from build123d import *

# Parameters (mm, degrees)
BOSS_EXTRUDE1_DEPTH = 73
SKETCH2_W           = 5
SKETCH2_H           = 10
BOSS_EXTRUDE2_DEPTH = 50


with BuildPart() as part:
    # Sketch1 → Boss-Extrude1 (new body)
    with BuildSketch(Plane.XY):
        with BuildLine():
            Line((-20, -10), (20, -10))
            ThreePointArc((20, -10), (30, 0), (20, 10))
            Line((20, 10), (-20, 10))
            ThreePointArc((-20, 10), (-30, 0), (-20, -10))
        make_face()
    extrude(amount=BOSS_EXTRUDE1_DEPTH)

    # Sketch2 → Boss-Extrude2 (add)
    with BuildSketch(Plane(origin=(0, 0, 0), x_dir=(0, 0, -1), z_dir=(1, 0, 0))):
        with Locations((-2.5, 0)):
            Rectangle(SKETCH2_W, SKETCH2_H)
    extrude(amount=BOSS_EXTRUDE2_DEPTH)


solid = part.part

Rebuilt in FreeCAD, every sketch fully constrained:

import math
import FreeCAD as App
import Part
import Sketcher
Q = App.Units.Quantity


def add_polygon(sketch, points):
    """Adds a closed chain of lines whose ends are joined by coincident constraints."""
    first, n = sketch.GeometryCount, len(points)
    for a, b in zip(points, points[1:] + points[:1]):
        sketch.addGeometry(Part.LineSegment(App.Vector(*a, 0), App.Vector(*b, 0)), False)
    for i in range(n):
        sketch.addConstraint(Sketcher.Constraint("Coincident", first + i, 2, first + (i + 1) % n, 1))

doc = App.newDocument("Part")
body = doc.addObject("PartDesign::Body", "Body")

sketch1 = body.newObject("Sketcher::SketchObject", "Sketch")
sketch1.AttachmentSupport = (doc.getObject("XY_Plane"), [""])
sketch1.MapMode = "FlatFace"
sketch1.addGeometry(Part.LineSegment(App.Vector(-20, -10, 0), App.Vector(20, -10, 0)), False)
sketch1.addGeometry(Part.ArcOfCircle(Part.Circle(App.Vector(20, 0, 0), App.Vector(0, 0, 1), 10), math.radians(-90), math.radians(90)), False)
sketch1.addGeometry(Part.LineSegment(App.Vector(20, 10, 0), App.Vector(-20, 10, 0)), False)
sketch1.addGeometry(Part.ArcOfCircle(Part.Circle(App.Vector(-20, 0, 0), App.Vector(0, 0, 1), 10), math.radians(90), math.radians(270)), False)
sketch1.addConstraint(Sketcher.Constraint("Tangent", 0, 2, 1, 1))
sketch1.addConstraint(Sketcher.Constraint("Tangent", 1, 2, 2, 1))
sketch1.addConstraint(Sketcher.Constraint("Tangent", 2, 2, 3, 1))
sketch1.addConstraint(Sketcher.Constraint("Tangent", 3, 2, 0, 1))
sketch1.addConstraint(Sketcher.Constraint("Horizontal", 0))
sketch1.addConstraint(Sketcher.Constraint("Horizontal", 2))
sketch1.addConstraint(Sketcher.Constraint("Symmetric", 1, 3, 3, 3, -1, 1))
sketch1.addConstraint(Sketcher.Constraint("Radius", 1, Q("10 mm")))
sketch1.addConstraint(Sketcher.Constraint("DistanceX", 0, 1, 0, 2, Q("40 mm")))
pad1 = body.newObject("PartDesign::Pad", "Pad")
pad1.Profile = sketch1
pad1.Length = 73

sketch2 = body.newObject("Sketcher::SketchObject", "Sketch001")
sketch2.AttachmentSupport = (doc.getObject("YZ_Plane"), [""])
sketch2.MapMode = "FlatFace"
add_polygon(sketch2, [(5, 5), (-5, 5), (-5, 0), (5, 0)])
sketch2.addConstraint(Sketcher.Constraint("Horizontal", 0))
sketch2.addConstraint(Sketcher.Constraint("Vertical", 1))
sketch2.addConstraint(Sketcher.Constraint("Horizontal", 2))
sketch2.addConstraint(Sketcher.Constraint("Vertical", 3))
sketch2.addConstraint(Sketcher.Constraint("Symmetric", 1, 2, 2, 2, -1, 1))
sketch2.addConstraint(Sketcher.Constraint("DistanceX", 0, 2, 0, 1, Q("10 mm")))
sketch2.addConstraint(Sketcher.Constraint("DistanceY", 1, 2, 1, 1, Q("5 mm")))
pad2 = body.newObject("PartDesign::Pad", "Pad001")
pad2.Profile = sketch2
pad2.Length = 50

doc.recompute()
